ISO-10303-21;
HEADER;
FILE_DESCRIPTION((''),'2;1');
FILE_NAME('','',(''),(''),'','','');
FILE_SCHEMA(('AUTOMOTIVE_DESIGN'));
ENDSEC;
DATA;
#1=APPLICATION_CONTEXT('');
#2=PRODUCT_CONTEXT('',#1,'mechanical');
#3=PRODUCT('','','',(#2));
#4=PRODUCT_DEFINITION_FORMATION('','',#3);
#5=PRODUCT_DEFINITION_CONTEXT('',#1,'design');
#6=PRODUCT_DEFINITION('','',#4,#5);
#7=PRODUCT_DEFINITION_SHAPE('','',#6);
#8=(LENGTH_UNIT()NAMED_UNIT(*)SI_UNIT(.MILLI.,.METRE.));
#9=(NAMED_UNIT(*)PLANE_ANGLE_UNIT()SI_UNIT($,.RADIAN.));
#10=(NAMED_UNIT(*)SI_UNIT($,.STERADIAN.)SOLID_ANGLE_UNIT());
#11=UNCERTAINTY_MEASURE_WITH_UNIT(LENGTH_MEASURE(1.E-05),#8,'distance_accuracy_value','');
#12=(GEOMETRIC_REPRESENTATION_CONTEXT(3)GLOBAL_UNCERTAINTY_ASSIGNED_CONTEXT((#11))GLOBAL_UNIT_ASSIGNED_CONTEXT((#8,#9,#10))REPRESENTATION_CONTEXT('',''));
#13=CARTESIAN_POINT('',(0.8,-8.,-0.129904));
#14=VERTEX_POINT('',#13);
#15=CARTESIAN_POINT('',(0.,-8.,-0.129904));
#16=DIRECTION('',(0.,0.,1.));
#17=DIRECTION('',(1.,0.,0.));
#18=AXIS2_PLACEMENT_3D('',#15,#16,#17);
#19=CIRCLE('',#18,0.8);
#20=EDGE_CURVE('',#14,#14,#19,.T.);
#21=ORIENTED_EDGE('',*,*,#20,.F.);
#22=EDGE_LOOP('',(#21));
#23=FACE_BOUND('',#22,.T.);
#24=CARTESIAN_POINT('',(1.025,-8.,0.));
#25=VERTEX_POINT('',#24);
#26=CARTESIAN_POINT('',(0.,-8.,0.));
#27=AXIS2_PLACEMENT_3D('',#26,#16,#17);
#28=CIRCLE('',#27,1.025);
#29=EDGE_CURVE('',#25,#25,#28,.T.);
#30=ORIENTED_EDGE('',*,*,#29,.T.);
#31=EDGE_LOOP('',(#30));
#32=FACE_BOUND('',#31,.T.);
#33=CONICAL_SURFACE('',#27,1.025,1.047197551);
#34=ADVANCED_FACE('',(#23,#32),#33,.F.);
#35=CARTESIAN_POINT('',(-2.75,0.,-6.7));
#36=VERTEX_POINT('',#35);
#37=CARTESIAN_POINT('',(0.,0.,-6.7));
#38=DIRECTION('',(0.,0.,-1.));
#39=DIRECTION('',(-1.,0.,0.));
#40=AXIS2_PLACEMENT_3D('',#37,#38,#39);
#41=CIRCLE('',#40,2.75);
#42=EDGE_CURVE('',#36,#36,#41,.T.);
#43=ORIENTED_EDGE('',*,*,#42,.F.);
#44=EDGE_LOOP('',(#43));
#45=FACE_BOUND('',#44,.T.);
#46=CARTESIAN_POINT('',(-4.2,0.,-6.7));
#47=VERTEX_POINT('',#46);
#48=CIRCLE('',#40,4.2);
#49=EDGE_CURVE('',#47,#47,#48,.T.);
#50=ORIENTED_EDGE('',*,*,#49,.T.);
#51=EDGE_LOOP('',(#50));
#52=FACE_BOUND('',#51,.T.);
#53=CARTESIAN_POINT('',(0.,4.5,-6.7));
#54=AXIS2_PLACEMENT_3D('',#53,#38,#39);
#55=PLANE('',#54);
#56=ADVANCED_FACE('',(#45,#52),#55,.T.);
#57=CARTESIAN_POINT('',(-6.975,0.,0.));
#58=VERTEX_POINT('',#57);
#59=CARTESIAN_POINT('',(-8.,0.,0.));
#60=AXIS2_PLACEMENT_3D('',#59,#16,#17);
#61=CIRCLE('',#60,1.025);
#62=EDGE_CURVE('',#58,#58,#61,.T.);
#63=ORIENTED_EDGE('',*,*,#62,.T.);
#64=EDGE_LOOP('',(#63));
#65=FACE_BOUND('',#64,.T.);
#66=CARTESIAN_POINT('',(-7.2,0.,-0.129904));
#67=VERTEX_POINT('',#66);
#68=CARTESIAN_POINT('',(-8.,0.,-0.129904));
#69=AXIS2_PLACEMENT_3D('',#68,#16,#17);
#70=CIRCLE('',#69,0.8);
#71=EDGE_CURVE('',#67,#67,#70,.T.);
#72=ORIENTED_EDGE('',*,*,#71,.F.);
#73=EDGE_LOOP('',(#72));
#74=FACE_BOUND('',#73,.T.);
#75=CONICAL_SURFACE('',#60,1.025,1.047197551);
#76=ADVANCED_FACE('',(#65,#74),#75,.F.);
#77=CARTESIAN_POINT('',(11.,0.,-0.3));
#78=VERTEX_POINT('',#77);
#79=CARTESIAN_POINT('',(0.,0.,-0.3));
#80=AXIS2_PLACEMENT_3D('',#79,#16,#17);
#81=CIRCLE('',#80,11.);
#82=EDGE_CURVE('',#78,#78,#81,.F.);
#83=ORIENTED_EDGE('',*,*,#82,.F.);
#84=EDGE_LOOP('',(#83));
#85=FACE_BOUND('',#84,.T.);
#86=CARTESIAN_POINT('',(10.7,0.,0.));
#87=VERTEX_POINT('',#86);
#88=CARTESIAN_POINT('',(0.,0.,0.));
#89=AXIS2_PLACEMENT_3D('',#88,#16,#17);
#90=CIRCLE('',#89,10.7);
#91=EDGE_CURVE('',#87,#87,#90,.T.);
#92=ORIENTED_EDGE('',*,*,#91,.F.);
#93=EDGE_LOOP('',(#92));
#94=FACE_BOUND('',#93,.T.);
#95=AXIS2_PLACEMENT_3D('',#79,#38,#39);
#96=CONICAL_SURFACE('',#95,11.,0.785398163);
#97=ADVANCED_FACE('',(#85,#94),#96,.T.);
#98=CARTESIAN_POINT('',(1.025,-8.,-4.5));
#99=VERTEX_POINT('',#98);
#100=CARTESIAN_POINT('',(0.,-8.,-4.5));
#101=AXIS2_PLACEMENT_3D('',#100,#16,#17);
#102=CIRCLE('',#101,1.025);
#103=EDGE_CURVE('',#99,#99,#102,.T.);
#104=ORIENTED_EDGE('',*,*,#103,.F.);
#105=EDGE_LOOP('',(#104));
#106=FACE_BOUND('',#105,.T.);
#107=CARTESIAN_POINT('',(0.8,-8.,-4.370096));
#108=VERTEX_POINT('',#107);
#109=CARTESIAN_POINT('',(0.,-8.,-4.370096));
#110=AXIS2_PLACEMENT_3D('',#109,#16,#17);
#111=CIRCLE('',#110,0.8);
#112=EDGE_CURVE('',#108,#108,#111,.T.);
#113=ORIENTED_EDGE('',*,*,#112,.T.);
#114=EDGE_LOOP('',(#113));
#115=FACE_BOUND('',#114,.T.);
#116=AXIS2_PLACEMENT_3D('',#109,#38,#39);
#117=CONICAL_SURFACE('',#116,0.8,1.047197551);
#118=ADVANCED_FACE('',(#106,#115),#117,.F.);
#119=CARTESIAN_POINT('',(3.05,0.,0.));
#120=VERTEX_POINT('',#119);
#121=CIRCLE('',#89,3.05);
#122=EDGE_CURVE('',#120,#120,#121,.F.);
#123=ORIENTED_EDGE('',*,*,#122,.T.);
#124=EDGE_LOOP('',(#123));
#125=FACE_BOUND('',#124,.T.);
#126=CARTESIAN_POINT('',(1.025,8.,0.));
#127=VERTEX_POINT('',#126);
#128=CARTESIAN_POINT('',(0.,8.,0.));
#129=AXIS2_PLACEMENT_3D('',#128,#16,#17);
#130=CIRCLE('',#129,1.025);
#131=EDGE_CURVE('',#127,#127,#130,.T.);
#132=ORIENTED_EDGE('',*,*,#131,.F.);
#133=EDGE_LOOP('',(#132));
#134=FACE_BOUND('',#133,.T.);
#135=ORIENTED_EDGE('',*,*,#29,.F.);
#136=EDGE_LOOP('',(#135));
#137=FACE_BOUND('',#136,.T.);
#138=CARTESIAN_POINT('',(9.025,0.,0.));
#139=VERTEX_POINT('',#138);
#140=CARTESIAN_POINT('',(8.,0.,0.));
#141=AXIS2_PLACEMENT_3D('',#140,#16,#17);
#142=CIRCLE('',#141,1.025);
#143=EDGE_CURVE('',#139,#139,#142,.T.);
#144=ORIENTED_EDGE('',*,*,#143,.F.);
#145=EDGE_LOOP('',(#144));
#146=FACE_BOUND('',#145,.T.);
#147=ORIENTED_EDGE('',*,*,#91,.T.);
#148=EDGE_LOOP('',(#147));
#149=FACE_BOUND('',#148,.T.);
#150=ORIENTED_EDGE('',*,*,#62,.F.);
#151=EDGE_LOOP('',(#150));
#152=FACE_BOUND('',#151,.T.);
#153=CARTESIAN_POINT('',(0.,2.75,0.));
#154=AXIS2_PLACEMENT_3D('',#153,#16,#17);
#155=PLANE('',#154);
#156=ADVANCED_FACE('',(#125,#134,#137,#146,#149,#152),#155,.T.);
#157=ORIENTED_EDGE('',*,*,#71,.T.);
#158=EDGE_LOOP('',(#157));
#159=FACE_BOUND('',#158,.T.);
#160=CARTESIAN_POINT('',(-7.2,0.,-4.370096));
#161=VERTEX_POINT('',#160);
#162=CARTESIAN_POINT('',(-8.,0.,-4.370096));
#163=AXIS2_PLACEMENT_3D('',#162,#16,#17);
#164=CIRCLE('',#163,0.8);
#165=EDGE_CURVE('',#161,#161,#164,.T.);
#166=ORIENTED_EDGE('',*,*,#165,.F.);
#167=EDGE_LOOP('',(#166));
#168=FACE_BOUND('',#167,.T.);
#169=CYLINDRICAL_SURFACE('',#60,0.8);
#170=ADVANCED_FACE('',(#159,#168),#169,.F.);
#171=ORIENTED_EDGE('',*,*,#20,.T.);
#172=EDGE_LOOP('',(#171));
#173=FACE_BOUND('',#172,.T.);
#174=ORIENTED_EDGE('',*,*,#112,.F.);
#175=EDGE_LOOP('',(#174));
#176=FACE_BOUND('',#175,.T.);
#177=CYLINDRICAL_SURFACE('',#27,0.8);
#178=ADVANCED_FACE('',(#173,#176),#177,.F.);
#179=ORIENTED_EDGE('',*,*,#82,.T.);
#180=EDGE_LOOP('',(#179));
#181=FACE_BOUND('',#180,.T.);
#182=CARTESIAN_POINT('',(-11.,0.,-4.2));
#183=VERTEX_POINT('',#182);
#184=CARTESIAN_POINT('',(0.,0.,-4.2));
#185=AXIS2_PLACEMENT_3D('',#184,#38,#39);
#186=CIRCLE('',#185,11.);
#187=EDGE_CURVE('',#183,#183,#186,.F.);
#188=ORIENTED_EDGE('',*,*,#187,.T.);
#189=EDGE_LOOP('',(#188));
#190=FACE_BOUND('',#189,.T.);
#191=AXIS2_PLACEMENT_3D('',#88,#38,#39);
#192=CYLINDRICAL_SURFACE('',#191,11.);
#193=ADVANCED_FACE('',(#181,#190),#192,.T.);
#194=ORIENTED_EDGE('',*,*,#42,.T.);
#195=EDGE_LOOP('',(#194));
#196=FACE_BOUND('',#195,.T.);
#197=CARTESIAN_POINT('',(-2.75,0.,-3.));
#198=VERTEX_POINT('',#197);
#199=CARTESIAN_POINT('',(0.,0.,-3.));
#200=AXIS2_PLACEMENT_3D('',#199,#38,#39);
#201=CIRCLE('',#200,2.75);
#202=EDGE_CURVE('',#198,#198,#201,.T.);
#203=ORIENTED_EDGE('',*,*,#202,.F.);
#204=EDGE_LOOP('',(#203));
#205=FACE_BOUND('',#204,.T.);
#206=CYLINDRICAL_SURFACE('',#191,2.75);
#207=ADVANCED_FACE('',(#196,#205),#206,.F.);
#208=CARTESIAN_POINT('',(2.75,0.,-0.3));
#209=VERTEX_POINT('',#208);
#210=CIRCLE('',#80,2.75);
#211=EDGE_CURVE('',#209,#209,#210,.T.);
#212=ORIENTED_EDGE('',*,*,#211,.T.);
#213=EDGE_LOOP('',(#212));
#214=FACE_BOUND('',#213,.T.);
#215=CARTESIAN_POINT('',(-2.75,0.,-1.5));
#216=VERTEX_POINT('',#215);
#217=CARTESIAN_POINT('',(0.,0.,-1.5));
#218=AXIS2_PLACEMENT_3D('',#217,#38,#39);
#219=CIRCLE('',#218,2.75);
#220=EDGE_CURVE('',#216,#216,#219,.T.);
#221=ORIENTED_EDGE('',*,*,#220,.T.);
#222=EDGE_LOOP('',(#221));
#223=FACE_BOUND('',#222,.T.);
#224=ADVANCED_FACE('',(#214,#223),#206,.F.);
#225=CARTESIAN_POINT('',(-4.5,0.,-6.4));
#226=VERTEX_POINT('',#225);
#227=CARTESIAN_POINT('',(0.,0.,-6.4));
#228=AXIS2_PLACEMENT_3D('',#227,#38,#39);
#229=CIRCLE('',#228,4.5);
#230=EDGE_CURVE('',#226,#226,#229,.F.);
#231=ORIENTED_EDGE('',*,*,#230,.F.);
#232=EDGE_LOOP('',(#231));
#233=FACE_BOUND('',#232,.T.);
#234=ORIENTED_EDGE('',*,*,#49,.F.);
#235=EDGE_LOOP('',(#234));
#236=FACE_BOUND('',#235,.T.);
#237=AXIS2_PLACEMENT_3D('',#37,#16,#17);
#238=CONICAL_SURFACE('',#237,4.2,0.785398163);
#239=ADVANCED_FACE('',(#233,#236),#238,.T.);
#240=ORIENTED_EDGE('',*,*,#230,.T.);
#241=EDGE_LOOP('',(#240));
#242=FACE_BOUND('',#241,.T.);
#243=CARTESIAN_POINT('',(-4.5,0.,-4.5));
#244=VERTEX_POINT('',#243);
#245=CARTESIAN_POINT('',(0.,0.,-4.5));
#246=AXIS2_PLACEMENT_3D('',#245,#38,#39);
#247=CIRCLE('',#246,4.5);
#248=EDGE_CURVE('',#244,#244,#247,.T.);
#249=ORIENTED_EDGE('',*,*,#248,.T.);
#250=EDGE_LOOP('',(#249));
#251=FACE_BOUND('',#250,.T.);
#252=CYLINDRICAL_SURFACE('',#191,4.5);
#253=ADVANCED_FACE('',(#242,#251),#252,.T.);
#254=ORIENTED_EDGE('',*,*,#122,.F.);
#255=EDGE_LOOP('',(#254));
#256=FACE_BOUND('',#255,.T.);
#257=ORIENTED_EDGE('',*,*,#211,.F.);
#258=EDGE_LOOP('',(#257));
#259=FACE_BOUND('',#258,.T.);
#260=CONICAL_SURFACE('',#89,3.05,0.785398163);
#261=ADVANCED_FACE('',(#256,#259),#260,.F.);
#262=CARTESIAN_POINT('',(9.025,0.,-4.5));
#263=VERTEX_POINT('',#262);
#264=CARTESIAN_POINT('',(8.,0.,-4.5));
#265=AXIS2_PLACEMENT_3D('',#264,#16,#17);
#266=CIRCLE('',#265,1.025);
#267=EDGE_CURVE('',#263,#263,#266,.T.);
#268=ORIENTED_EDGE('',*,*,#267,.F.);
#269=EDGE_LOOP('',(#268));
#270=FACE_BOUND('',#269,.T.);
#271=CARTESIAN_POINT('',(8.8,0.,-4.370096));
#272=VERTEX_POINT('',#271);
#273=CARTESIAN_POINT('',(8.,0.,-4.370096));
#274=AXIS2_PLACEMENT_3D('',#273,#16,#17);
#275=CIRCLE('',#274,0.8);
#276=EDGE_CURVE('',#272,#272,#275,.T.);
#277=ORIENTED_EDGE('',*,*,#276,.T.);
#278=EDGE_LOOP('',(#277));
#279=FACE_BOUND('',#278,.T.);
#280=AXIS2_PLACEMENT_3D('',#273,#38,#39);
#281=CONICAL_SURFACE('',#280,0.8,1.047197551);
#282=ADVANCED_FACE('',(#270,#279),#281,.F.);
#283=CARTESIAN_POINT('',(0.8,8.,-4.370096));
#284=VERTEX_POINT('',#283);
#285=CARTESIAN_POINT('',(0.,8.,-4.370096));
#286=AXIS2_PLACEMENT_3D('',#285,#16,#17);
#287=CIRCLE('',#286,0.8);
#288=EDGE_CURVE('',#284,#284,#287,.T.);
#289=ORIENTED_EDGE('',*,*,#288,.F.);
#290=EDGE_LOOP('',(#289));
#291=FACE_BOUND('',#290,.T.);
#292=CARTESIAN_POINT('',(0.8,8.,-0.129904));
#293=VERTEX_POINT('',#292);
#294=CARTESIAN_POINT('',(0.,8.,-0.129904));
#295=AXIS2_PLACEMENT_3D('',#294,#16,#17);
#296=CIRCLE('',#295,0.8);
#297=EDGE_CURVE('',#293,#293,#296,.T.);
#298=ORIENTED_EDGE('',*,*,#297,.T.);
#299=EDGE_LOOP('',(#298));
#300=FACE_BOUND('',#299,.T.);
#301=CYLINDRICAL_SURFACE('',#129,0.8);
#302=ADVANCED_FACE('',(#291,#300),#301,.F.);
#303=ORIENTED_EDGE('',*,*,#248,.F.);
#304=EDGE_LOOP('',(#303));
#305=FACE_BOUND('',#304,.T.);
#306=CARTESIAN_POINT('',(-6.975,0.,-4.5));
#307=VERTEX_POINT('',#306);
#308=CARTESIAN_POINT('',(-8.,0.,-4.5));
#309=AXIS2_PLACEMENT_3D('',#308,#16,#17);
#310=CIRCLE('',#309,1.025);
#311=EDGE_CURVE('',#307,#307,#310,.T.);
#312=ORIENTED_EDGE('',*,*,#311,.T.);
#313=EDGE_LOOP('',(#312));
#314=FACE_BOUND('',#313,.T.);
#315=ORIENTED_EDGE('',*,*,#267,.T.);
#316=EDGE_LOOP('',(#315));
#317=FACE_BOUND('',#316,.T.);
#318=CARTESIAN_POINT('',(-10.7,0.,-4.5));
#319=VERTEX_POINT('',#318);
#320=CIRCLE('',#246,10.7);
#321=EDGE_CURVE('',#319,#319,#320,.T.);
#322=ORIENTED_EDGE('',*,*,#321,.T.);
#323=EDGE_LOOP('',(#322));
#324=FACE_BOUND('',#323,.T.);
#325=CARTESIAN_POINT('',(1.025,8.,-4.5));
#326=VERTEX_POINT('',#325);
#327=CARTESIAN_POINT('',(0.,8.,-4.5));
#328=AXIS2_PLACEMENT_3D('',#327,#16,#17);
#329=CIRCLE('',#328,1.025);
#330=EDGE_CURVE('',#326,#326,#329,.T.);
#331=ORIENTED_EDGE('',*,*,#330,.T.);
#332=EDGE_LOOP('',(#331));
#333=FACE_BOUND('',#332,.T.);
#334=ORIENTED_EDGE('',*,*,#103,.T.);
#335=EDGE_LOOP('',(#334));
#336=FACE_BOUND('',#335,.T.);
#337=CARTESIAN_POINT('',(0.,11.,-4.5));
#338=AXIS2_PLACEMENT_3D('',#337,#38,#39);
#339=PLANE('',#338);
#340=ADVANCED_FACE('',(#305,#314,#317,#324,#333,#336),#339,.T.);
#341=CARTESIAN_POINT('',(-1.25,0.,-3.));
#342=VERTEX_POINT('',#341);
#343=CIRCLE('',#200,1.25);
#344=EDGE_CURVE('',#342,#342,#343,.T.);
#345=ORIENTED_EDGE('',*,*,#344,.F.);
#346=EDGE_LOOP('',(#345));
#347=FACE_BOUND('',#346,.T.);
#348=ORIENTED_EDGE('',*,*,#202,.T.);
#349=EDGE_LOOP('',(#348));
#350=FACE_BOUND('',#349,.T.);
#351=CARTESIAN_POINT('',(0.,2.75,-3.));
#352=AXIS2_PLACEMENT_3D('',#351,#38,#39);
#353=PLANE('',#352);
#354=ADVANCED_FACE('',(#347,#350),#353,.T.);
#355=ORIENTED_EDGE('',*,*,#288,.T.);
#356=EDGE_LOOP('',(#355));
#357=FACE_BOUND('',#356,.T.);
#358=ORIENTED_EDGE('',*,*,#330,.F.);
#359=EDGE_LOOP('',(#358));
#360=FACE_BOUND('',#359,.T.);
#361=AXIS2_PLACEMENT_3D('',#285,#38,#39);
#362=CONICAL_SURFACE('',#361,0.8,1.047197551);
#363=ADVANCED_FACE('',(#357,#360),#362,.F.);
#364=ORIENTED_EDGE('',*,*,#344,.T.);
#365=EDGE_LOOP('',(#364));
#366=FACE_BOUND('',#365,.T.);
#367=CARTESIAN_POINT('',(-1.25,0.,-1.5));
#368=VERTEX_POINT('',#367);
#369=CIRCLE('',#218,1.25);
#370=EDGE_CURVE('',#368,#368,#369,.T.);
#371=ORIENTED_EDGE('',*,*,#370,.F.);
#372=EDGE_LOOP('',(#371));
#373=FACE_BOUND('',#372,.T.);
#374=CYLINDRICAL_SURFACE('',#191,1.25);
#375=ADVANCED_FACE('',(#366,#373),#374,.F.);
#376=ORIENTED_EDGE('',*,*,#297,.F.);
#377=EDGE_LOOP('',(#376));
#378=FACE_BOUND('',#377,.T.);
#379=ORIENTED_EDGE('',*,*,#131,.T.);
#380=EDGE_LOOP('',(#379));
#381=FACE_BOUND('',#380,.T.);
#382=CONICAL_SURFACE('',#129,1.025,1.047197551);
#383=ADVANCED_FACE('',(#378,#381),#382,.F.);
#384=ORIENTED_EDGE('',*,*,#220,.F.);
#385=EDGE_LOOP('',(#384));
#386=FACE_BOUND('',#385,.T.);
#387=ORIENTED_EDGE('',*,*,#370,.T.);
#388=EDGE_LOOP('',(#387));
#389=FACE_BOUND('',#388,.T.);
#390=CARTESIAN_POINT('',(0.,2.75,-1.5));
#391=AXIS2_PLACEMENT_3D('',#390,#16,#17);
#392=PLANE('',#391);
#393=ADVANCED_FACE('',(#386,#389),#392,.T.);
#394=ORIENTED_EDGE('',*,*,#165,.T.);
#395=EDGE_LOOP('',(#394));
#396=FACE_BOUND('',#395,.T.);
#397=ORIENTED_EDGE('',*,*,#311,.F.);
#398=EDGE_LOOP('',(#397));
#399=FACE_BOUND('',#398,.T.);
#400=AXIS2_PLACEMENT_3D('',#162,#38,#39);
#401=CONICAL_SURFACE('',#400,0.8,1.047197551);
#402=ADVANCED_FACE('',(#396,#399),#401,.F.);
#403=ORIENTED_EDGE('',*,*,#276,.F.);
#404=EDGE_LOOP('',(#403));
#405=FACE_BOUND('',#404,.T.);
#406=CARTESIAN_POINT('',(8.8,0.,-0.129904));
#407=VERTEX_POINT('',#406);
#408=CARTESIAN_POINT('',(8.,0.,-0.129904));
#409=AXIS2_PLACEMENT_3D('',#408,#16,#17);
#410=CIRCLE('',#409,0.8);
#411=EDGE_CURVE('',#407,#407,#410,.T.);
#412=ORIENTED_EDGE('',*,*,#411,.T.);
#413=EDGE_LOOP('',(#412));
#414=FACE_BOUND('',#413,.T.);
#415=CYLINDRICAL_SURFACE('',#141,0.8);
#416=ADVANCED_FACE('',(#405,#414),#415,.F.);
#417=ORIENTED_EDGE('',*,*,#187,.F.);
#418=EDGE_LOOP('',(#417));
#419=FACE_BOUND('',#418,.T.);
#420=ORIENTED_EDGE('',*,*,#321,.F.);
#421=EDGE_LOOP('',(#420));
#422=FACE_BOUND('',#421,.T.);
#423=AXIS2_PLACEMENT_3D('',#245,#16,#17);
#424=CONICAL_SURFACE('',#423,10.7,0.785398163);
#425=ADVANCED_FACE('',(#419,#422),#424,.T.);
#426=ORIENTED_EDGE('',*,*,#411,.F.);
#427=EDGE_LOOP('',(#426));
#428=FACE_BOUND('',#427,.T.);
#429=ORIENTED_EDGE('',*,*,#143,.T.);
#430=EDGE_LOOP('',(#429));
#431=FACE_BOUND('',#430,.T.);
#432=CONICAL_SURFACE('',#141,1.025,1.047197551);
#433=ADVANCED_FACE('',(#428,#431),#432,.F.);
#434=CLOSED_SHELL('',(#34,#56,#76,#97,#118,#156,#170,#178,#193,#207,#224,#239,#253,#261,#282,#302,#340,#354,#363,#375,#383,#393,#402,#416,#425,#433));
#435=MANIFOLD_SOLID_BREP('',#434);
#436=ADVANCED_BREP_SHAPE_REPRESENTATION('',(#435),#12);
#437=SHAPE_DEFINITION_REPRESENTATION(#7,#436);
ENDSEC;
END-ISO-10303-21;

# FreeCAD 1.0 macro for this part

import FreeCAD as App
import Part
import Sketcher

V = App.Vector
Q = App.Units.Quantity


def edges_at(feature, points):
    """Names of the edges that pass closest to the given points."""
    edges = feature.Shape.Edges
    near = lambda p: min(range(len(edges)), key=lambda i: edges[i].distToShape(Part.Vertex(*p))[0])
    return sorted({f"Edge{near(p) + 1}" for p in points})

doc = App.newDocument("Part")
body = doc.addObject("PartDesign::Body", "Body")

# Sketch on YZ plane
sketch1 = body.newObject("Sketcher::SketchObject", "Sketch")
sketch1.AttachmentSupport = (doc.getObject("YZ_Plane"), [""])
sketch1.MapMode = "FlatFace"
sketch1.addGeometry([
    Part.LineSegment(V(1.2, -1.5, 0), V(1.2, -3, 0)),  # 0
    Part.LineSegment(V(1.2, -3, 0), V(2.8, -3, 0)),  # 1
    Part.LineSegment(V(2.8, -3, 0), V(2.8, -6.7, 0)),  # 2
    Part.LineSegment(V(2.8, -6.7, 0), V(4.5, -6.7, 0)),  # 3
    Part.LineSegment(V(4.5, -6.7, 0), V(4.5, -4.5, 0)),  # 4
    Part.LineSegment(V(4.5, -4.5, 0), V(11, -4.5, 0)),  # 5
    Part.LineSegment(V(11, -4.5, 0), V(11, 0, 0)),  # 6
    Part.LineSegment(V(11, 0, 0), V(2.8, 0, 0)),  # 7
    Part.LineSegment(V(2.8, 0, 0), V(2.8, -1.5, 0)),  # 8
    Part.LineSegment(V(2.8, -1.5, 0), V(1.2, -1.5, 0)),  # 9
], False)
sketch1.addConstraint([
    Sketcher.Constraint("Coincident", 0, 2, 1, 1),
    Sketcher.Constraint("Coincident", 1, 2, 2, 1),
    Sketcher.Constraint("Coincident", 2, 2, 3, 1),
    Sketcher.Constraint("Coincident", 3, 2, 4, 1),
    Sketcher.Constraint("Coincident", 4, 2, 5, 1),
    Sketcher.Constraint("Coincident", 5, 2, 6, 1),
    Sketcher.Constraint("Coincident", 6, 2, 7, 1),
    Sketcher.Constraint("Coincident", 7, 2, 8, 1),
    Sketcher.Constraint("Coincident", 8, 2, 9, 1),
    Sketcher.Constraint("Coincident", 9, 2, 0, 1),
    Sketcher.Constraint("Vertical", 0),
    Sketcher.Constraint("Horizontal", 1),
    Sketcher.Constraint("Vertical", 2),
    Sketcher.Constraint("Horizontal", 3),
    Sketcher.Constraint("Vertical", 4),
    Sketcher.Constraint("Horizontal", 5),
    Sketcher.Constraint("Vertical", 6),
    Sketcher.Constraint("Horizontal", 7),
    Sketcher.Constraint("Vertical", 8),
    Sketcher.Constraint("Horizontal", 9),
    Sketcher.Constraint("PointOnObject", 6, 2, -1),
    Sketcher.Constraint("Vertical", 2, 2, 7, 2),
    Sketcher.Constraint("Equal", 9, 0),
    Sketcher.Constraint("Equal", 0, 8),
    Sketcher.Constraint("DistanceX", 1, 1, 1, 2, Q("1.5 mm")),
    Sketcher.Constraint("DistanceX", 5, 1, 5, 2, Q("6.5 mm")),
    Sketcher.Constraint("DistanceY", 2, 2, 2, 1, Q("3.7 mm")),
    Sketcher.Constraint("DistanceY", 4, 1, 4, 2, Q("2.2 mm")),
    Sketcher.Constraint("DistanceX", -1, 1, 5, 2, Q("11 mm")),
    Sketcher.Constraint("DistanceX", 3, 1, 3, 2, Q("1.75 mm")),
])
revolution = body.newObject("PartDesign::Revolution", "Revolution")
revolution.Profile = sketch1
revolution.ReferenceAxis = (sketch1, ["V_Axis"])
revolution.Angle = 360

# Sketch on YZ plane
sketch2 = body.newObject("Sketcher::SketchObject", "Sketch001")
sketch2.AttachmentSupport = (doc.getObject("YZ_Plane"), [""])
sketch2.MapMode = "FlatFace"
sketch2.addGeometry([
    Part.LineSegment(V(8, -4.5, 0), V(8, 0, 0)),  # 0
    Part.LineSegment(V(8, 0, 0), V(6.97, 0, 0)),  # 1
    Part.LineSegment(V(6.97, 0, 0), V(7.2, -0.13, 0)),  # 2
    Part.LineSegment(V(7.2, -0.13, 0), V(7.2, -4.37, 0)),  # 3
    Part.LineSegment(V(7.2, -4.37, 0), V(6.97, -4.5, 0)),  # 4
    Part.LineSegment(V(6.97, -4.5, 0), V(8, -4.5, 0)),  # 5
], False)
sketch2.addGeometry(Part.LineSegment(V(8, 0, 0), V(8, -4.5, 0)), True)  # axis
sketch2.addConstraint([
    Sketcher.Constraint("Coincident", 0, 2, 1, 1),
    Sketcher.Constraint("Coincident", 1, 2, 2, 1),
    Sketcher.Constraint("Coincident", 2, 2, 3, 1),
    Sketcher.Constraint("Coincident", 3, 2, 4, 1),
    Sketcher.Constraint("Coincident", 4, 2, 5, 1),
    Sketcher.Constraint("Coincident", 5, 2, 0, 1),
    Sketcher.Constraint("Vertical", 0),
    Sketcher.Constraint("Horizontal", 1),
    Sketcher.Constraint("Vertical", 3),
    Sketcher.Constraint("Horizontal", 5),
    Sketcher.Constraint("Vertical", 6),
    Sketcher.Constraint("Coincident", 6, 1, 0, 2),
    Sketcher.Constraint("PointOnObject", 0, 2, -1),
    Sketcher.Constraint("Horizontal", 4, 2, 6, 2),
    Sketcher.Constraint("Vertical", 1, 2, 4, 2),
    Sketcher.Constraint("Equal", 2, 4),
    Sketcher.Constraint("Angle", 2, Q("-30 deg")),
    Sketcher.Constraint("DistanceY", 0, 1, 0, 2, Q("4.5 mm")),
    Sketcher.Constraint("DistanceX", -1, 1, 0, 2, Q("8 mm")),
    Sketcher.Constraint("DistanceX", -1, 1, 2, 2, Q("7.2 mm")),
    Sketcher.Constraint("DistanceX", 1, 2, 1, 1, Q("1.025 mm")),
])
groove = body.newObject("PartDesign::Groove", "Groove")
groove.Profile = sketch2
groove.ReferenceAxis = (sketch2, ["Axis0"])
groove.Angle = 360
doc.recompute()

datumline = body.newObject("PartDesign::Line", "DatumLine")
datumline.Placement = App.Placement(V(0, 0, 0), App.Rotation(V(0, 0, 1), V(0.707106781, -0.707106781, 0)))
linearpattern = body.newObject("PartDesign::LinearPattern", "LinearPattern")
linearpattern.Originals = [groove]
linearpattern.Direction = (datumline, [""])
linearpattern.Mode = "offset"
linearpattern.Offset = 11.313708
linearpattern.Occurrences = 2
body.Tip = linearpattern
doc.recompute()

linearpattern2 = body.newObject("PartDesign::LinearPattern", "LinearPattern001")
linearpattern2.Originals = [groove]
linearpattern2.Direction = (doc.getObject("Y_Axis"), [""])
linearpattern2.Mode = "offset"
linearpattern2.Offset = 16
linearpattern2.Occurrences = 2
linearpattern2.Reversed = True
body.Tip = linearpattern2
doc.recompute()

datumline2 = body.newObject("PartDesign::Line", "DatumLine001")
datumline2.Placement = App.Placement(V(0, 0, 0), App.Rotation(V(0, 0, 1), V(-0.707106781, -0.707106781, 0)))
linearpattern3 = body.newObject("PartDesign::LinearPattern", "LinearPattern002")
linearpattern3.Originals = [groove]
linearpattern3.Direction = (datumline2, [""])
linearpattern3.Mode = "offset"
linearpattern3.Offset = 11.313708
linearpattern3.Occurrences = 2
body.Tip = linearpattern3
doc.recompute()

linearpattern4 = body.newObject("PartDesign::LinearPattern", "LinearPattern003")
linearpattern4.Originals = [groove]
linearpattern4.Direction = (doc.getObject("Y_Axis"), [""])
linearpattern4.Mode = "offset"
linearpattern4.Offset = 8
linearpattern4.Occurrences = 2
linearpattern4.Reversed = True
body.Tip = linearpattern4
doc.recompute()

chamfer = body.newObject("PartDesign::Chamfer", "Chamfer")
chamfer.Base = (linearpattern4, edges_at(linearpattern4, [
    (0, -11, -4.5),
    (0, -11, 0),
    (0, -2.75, 0),
    (0, -4.5, -6.7),
]))
chamfer.Size = 0.3

doc.recompute()
